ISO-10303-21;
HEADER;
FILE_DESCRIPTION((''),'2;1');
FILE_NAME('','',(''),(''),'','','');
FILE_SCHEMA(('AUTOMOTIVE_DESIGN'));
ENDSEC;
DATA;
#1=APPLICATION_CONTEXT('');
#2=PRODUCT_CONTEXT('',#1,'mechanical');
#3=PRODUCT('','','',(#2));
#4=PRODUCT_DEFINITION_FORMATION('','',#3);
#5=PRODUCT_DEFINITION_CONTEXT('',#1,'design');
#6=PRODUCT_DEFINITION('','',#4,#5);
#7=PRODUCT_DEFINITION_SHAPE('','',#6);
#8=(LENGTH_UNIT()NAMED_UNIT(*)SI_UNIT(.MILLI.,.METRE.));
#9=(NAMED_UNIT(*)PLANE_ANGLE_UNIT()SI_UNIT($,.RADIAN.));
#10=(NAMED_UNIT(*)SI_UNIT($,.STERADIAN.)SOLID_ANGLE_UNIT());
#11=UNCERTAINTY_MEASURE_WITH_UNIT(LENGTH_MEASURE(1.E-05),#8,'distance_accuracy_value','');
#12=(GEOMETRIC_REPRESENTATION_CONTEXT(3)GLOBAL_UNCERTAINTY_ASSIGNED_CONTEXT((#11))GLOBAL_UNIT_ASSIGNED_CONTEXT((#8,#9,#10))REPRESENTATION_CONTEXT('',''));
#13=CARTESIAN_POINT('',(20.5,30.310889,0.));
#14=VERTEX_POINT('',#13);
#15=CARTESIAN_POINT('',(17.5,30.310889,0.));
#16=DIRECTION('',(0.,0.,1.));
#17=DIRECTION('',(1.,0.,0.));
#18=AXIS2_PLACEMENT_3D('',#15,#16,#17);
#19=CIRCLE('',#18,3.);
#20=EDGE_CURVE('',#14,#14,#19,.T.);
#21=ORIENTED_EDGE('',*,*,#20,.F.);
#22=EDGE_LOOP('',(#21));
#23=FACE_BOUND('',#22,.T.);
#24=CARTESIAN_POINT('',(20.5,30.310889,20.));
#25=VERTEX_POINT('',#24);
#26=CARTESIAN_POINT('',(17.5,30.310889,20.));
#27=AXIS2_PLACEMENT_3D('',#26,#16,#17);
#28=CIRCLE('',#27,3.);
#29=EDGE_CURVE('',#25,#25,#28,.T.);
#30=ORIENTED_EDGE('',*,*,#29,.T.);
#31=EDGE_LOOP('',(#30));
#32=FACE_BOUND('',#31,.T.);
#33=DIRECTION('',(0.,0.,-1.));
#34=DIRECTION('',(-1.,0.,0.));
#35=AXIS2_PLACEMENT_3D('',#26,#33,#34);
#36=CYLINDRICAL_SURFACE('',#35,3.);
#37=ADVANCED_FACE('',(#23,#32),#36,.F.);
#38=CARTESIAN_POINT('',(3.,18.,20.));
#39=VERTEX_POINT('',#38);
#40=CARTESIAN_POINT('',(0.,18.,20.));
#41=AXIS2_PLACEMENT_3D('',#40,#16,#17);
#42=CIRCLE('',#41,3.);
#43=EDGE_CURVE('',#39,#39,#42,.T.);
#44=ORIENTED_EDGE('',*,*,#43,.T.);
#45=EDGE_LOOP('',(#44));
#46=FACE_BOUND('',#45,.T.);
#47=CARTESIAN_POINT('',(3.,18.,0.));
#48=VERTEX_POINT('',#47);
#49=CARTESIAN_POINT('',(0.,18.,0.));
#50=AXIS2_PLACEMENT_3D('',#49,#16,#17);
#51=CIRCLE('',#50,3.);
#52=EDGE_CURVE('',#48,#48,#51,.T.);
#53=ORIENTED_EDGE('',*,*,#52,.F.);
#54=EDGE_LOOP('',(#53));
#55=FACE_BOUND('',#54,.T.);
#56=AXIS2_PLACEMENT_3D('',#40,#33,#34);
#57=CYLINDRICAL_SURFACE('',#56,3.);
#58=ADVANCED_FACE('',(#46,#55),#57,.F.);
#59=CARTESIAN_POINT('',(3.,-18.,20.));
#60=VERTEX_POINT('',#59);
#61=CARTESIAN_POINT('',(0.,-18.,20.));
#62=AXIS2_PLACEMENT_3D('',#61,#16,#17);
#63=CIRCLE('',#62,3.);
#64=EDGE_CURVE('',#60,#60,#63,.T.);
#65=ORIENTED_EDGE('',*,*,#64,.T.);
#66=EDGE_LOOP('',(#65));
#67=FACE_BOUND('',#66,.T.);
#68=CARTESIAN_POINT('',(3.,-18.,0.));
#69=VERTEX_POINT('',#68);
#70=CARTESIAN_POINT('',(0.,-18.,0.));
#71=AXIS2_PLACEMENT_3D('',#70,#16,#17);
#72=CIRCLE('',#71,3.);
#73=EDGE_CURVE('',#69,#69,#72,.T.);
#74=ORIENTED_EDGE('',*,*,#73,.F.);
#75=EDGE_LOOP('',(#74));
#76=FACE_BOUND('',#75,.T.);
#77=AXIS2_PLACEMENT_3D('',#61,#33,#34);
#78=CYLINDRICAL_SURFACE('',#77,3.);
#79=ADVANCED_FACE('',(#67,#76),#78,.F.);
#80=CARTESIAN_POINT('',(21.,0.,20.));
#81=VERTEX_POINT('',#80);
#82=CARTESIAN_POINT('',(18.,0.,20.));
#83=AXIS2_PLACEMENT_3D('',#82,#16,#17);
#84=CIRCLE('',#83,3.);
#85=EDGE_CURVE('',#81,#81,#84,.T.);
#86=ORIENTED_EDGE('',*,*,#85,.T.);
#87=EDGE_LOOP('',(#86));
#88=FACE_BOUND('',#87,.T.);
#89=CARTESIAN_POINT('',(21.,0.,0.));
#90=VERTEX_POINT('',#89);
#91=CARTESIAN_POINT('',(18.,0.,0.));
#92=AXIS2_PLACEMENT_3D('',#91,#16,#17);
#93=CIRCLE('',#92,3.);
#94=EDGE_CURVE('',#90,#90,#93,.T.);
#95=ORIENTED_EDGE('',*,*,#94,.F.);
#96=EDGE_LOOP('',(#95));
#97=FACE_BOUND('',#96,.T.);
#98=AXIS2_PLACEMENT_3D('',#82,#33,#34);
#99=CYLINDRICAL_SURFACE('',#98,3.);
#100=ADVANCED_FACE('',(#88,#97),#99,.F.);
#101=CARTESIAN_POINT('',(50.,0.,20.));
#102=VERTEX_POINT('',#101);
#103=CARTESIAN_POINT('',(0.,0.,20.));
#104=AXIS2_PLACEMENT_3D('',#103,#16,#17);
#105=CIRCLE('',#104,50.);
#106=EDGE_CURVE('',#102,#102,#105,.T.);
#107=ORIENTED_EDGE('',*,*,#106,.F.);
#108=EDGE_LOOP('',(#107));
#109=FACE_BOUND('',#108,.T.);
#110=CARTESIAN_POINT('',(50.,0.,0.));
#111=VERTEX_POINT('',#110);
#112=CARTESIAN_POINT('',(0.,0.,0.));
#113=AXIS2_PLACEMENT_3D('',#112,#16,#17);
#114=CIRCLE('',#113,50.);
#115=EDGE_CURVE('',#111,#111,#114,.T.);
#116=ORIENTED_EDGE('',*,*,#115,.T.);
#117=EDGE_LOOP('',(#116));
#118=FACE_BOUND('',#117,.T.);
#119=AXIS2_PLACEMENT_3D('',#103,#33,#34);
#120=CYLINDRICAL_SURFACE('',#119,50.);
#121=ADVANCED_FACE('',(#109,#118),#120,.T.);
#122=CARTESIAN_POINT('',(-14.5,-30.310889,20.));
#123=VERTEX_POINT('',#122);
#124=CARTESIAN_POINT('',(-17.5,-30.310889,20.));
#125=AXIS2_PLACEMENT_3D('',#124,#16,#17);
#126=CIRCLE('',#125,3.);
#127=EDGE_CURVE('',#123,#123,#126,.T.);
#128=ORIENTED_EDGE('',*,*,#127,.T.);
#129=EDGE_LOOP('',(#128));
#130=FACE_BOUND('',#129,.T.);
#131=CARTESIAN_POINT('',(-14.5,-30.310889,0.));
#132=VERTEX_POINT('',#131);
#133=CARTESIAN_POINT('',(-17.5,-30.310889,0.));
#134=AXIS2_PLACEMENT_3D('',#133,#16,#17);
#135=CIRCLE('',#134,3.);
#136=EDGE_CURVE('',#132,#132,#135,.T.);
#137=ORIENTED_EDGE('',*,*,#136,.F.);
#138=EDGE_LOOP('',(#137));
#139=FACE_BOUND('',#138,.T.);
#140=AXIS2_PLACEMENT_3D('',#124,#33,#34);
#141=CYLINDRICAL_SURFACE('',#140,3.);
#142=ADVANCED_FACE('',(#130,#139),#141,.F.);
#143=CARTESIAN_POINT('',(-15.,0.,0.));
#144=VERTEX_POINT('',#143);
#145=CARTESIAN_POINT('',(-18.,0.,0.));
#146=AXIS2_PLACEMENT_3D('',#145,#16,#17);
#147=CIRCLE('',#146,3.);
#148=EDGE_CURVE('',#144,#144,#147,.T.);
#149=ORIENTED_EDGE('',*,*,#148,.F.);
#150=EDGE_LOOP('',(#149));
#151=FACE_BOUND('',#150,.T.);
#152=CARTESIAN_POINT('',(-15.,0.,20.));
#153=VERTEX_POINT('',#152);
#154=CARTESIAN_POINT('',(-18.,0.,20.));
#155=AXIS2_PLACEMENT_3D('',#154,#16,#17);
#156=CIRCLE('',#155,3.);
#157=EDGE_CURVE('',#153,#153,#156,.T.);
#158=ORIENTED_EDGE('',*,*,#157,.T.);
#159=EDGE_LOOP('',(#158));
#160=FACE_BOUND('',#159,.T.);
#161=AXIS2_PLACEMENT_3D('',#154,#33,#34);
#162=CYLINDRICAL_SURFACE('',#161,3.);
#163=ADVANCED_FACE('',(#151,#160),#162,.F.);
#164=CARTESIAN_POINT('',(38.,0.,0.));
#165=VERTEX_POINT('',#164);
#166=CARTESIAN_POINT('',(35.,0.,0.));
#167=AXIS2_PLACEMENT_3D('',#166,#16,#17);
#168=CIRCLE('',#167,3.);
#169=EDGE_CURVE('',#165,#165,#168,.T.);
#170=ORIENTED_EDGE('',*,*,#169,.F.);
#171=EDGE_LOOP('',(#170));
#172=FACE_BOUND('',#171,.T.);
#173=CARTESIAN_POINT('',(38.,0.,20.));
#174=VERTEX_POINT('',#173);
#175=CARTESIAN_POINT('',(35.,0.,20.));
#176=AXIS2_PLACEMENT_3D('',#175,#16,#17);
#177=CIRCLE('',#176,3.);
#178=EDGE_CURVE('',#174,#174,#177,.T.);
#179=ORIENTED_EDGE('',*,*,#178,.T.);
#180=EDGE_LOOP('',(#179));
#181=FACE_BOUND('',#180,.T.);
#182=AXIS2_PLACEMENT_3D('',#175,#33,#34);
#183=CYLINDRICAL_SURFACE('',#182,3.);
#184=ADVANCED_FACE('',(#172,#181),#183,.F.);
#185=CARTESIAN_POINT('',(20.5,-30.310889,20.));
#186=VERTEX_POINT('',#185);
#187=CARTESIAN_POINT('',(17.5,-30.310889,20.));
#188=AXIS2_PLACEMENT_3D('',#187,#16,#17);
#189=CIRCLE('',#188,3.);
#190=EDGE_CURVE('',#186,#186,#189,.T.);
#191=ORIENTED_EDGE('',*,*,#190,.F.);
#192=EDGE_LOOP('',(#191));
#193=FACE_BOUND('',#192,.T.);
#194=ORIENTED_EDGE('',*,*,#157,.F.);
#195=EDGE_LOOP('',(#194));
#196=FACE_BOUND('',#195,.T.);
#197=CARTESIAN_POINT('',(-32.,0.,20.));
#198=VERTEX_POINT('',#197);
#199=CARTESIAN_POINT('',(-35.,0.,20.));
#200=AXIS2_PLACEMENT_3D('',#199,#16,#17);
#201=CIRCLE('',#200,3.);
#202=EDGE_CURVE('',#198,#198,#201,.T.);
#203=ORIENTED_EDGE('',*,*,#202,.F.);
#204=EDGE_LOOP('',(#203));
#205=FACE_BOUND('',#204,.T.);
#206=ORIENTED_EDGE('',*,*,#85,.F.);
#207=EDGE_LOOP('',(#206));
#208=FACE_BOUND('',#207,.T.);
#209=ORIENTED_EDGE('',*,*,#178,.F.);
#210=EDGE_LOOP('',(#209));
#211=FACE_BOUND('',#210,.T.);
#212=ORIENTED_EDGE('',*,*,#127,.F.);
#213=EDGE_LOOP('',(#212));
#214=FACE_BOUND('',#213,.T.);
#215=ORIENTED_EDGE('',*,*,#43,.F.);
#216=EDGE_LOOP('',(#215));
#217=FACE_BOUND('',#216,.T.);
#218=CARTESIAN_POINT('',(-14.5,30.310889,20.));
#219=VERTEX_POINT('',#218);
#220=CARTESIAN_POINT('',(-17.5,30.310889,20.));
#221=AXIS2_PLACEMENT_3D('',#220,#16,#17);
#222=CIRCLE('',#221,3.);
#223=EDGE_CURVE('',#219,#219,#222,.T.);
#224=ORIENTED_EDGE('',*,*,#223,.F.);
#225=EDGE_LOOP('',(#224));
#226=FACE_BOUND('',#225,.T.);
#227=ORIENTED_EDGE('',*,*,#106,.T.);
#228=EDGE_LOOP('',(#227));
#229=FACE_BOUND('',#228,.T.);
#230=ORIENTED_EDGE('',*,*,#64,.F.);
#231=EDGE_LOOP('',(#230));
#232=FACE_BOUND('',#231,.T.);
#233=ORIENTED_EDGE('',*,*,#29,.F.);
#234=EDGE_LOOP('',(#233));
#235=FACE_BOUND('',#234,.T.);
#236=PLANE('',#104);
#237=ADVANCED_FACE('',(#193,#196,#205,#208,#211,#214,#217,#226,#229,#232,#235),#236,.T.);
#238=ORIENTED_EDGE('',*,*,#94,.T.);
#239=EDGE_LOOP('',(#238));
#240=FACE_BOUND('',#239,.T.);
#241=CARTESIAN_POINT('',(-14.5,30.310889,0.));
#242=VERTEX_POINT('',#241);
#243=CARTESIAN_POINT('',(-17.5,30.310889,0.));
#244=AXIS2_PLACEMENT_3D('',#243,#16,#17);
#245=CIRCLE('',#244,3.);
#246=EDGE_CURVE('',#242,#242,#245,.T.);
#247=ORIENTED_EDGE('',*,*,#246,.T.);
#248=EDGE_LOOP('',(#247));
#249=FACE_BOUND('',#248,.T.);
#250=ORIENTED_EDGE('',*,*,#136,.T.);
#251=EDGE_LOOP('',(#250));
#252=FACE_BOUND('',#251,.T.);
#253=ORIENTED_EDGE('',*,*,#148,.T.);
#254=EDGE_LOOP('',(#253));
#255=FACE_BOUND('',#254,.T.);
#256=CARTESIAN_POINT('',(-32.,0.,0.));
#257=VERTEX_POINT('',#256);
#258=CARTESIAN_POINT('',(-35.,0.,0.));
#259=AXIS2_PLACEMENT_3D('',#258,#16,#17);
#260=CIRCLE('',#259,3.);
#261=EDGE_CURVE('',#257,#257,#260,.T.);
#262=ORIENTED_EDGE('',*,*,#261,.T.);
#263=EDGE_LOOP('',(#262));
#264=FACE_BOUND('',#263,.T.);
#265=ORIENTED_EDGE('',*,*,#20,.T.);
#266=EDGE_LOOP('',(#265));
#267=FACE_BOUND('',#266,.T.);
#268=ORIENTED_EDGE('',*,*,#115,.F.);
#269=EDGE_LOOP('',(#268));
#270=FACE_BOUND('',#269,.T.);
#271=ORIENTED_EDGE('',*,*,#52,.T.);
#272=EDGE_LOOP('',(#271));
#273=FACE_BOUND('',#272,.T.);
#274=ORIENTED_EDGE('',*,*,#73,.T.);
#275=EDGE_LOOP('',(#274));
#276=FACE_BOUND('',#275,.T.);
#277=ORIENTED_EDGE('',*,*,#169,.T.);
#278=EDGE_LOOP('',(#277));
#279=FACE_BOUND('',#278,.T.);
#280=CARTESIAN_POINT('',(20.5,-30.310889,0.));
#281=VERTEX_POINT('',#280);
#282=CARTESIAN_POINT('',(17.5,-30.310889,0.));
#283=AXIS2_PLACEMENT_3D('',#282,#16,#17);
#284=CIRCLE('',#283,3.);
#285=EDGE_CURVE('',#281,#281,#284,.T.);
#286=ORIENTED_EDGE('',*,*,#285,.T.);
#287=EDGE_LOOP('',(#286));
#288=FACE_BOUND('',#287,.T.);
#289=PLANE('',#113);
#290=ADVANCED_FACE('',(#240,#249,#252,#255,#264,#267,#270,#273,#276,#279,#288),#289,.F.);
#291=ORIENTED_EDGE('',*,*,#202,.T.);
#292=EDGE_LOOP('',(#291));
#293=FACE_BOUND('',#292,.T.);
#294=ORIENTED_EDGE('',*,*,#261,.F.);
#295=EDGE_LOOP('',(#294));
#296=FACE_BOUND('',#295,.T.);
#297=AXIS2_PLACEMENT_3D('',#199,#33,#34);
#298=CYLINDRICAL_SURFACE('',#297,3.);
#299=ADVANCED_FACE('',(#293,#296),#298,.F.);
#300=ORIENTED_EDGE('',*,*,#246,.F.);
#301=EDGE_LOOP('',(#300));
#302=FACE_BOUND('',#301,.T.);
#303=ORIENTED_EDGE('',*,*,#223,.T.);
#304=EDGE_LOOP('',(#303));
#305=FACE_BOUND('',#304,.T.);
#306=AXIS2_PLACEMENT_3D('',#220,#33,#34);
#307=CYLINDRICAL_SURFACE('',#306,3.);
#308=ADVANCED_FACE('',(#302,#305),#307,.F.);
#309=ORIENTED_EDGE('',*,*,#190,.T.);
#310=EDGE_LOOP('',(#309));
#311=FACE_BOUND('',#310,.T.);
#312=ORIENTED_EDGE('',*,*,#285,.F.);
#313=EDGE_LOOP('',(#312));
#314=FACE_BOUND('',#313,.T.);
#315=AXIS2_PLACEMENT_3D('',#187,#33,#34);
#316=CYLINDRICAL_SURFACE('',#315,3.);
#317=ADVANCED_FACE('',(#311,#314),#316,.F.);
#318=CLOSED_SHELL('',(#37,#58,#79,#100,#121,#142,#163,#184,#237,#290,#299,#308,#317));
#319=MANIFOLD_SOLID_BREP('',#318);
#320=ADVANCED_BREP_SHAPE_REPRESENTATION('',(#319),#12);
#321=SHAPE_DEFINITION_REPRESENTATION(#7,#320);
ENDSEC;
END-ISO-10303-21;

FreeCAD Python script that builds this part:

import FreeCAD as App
import Part
import Sketcher

V = App.Vector

doc = App.newDocument("Part")
params = doc.addObject("Spreadsheet::Sheet", "Params")
for row, (alias, value) in enumerate([
    ("sketch1_diameter", "100 mm"),
    ("sketch1_diameter2", "6 mm"),
    ("pad1_length", "20 mm"),
], start=1):
    params.set(f"A{row}", alias)
    params.set(f"B{row}", "=" + value)
    params.setAlias(f"B{row}", alias)

body = doc.addObject("PartDesign::Body", "Body")

# Sketch on XY plane
sketch1 = body.newObject("Sketcher::SketchObject", "Sketch")
sketch1.AttachmentSupport = (doc.getObject("XY_Plane"), [""])
sketch1.MapMode = "FlatFace"
sketch1.addGeometry([
    Part.Circle(V(0, 0, 0), V(0, 0, 1), 50),  # 0
    Part.Circle(V(-17.5, -30.3, 0), V(0, 0, 1), 3),  # 1
    Part.Circle(V(17.5, -30.3, 0), V(0, 0, 1), 3),  # 2
    Part.Circle(V(0, -18, 0), V(0, 0, 1), 3),  # 3
    Part.Circle(V(-35, 0, 0), V(0, 0, 1), 3),  # 4
    Part.Circle(V(-18, 0, 0), V(0, 0, 1), 3),  # 5
    Part.Circle(V(-17.5, 30.3, 0), V(0, 0, 1), 3),  # 6
    Part.Circle(V(18, 0, 0), V(0, 0, 1), 3),  # 7
    Part.Circle(V(35, 0, 0), V(0, 0, 1), 3),  # 8
    Part.Circle(V(0, 18, 0), V(0, 0, 1), 3),  # 9
    Part.Circle(V(17.5, 30.3, 0), V(0, 0, 1), 3),  # 10
], False)
sketch1.addConstraint([
    Sketcher.Constraint("Coincident", 0, 3, -1, 1),
    Sketcher.Constraint("Equal", 1, 2),
    Sketcher.Constraint("Equal", 2, 3),
    Sketcher.Constraint("Equal", 3, 4),
    Sketcher.Constraint("Equal", 4, 5),
    Sketcher.Constraint("Equal", 5, 6),
    Sketcher.Constraint("Equal", 6, 7),
    Sketcher.Constraint("Equal", 7, 8),
    Sketcher.Constraint("Equal", 8, 9),
    Sketcher.Constraint("Equal", 9, 10),
    Sketcher.Constraint("Symmetric", 2, 3, 6, 3, -1, 1),
    Sketcher.Constraint("Symmetric", 5, 3, 7, 3, -1, 1),
    Sketcher.Constraint("Symmetric", 4, 3, 8, 3, -1, 1),
    Sketcher.Constraint("Symmetric", 3, 3, 9, 3, -1, 1),
    Sketcher.Constraint("Symmetric", 1, 3, 10, 3, -1, 1),
    Sketcher.Constraint("Symmetric", 1, 3, 2, 3, -2),
    Sketcher.Constraint("PointOnObject", 3, 3, -2),
    Sketcher.Constraint("PointOnObject", 4, 3, -1),
    Sketcher.Constraint("PointOnObject", 5, 3, -1),
    Sketcher.Constraint("Diameter", 0, 100.0),
    Sketcher.Constraint("Diameter", 1, 6.0),
    Sketcher.Constraint("DistanceY", 3, 3, -1, 1, 18.0),
    Sketcher.Constraint("DistanceX", 4, 3, -1, 1, 35.0),
    Sketcher.Constraint("DistanceX", 5, 3, -1, 1, 18.0),
    Sketcher.Constraint("DistanceX", 1, 3, 2, 3, 35.0),
    Sketcher.Constraint("DistanceY", 1, 3, -1, 1, 30.310889),
])
sketch1.setExpression("Constraints[19]", "Params.sketch1_diameter")
sketch1.setExpression("Constraints[20]", "Params.sketch1_diameter2")
pad1 = body.newObject("PartDesign::Pad", "Pad")
pad1.Profile = sketch1
pad1.setExpression("Length", "Params.pad1_length")

doc.recompute()
